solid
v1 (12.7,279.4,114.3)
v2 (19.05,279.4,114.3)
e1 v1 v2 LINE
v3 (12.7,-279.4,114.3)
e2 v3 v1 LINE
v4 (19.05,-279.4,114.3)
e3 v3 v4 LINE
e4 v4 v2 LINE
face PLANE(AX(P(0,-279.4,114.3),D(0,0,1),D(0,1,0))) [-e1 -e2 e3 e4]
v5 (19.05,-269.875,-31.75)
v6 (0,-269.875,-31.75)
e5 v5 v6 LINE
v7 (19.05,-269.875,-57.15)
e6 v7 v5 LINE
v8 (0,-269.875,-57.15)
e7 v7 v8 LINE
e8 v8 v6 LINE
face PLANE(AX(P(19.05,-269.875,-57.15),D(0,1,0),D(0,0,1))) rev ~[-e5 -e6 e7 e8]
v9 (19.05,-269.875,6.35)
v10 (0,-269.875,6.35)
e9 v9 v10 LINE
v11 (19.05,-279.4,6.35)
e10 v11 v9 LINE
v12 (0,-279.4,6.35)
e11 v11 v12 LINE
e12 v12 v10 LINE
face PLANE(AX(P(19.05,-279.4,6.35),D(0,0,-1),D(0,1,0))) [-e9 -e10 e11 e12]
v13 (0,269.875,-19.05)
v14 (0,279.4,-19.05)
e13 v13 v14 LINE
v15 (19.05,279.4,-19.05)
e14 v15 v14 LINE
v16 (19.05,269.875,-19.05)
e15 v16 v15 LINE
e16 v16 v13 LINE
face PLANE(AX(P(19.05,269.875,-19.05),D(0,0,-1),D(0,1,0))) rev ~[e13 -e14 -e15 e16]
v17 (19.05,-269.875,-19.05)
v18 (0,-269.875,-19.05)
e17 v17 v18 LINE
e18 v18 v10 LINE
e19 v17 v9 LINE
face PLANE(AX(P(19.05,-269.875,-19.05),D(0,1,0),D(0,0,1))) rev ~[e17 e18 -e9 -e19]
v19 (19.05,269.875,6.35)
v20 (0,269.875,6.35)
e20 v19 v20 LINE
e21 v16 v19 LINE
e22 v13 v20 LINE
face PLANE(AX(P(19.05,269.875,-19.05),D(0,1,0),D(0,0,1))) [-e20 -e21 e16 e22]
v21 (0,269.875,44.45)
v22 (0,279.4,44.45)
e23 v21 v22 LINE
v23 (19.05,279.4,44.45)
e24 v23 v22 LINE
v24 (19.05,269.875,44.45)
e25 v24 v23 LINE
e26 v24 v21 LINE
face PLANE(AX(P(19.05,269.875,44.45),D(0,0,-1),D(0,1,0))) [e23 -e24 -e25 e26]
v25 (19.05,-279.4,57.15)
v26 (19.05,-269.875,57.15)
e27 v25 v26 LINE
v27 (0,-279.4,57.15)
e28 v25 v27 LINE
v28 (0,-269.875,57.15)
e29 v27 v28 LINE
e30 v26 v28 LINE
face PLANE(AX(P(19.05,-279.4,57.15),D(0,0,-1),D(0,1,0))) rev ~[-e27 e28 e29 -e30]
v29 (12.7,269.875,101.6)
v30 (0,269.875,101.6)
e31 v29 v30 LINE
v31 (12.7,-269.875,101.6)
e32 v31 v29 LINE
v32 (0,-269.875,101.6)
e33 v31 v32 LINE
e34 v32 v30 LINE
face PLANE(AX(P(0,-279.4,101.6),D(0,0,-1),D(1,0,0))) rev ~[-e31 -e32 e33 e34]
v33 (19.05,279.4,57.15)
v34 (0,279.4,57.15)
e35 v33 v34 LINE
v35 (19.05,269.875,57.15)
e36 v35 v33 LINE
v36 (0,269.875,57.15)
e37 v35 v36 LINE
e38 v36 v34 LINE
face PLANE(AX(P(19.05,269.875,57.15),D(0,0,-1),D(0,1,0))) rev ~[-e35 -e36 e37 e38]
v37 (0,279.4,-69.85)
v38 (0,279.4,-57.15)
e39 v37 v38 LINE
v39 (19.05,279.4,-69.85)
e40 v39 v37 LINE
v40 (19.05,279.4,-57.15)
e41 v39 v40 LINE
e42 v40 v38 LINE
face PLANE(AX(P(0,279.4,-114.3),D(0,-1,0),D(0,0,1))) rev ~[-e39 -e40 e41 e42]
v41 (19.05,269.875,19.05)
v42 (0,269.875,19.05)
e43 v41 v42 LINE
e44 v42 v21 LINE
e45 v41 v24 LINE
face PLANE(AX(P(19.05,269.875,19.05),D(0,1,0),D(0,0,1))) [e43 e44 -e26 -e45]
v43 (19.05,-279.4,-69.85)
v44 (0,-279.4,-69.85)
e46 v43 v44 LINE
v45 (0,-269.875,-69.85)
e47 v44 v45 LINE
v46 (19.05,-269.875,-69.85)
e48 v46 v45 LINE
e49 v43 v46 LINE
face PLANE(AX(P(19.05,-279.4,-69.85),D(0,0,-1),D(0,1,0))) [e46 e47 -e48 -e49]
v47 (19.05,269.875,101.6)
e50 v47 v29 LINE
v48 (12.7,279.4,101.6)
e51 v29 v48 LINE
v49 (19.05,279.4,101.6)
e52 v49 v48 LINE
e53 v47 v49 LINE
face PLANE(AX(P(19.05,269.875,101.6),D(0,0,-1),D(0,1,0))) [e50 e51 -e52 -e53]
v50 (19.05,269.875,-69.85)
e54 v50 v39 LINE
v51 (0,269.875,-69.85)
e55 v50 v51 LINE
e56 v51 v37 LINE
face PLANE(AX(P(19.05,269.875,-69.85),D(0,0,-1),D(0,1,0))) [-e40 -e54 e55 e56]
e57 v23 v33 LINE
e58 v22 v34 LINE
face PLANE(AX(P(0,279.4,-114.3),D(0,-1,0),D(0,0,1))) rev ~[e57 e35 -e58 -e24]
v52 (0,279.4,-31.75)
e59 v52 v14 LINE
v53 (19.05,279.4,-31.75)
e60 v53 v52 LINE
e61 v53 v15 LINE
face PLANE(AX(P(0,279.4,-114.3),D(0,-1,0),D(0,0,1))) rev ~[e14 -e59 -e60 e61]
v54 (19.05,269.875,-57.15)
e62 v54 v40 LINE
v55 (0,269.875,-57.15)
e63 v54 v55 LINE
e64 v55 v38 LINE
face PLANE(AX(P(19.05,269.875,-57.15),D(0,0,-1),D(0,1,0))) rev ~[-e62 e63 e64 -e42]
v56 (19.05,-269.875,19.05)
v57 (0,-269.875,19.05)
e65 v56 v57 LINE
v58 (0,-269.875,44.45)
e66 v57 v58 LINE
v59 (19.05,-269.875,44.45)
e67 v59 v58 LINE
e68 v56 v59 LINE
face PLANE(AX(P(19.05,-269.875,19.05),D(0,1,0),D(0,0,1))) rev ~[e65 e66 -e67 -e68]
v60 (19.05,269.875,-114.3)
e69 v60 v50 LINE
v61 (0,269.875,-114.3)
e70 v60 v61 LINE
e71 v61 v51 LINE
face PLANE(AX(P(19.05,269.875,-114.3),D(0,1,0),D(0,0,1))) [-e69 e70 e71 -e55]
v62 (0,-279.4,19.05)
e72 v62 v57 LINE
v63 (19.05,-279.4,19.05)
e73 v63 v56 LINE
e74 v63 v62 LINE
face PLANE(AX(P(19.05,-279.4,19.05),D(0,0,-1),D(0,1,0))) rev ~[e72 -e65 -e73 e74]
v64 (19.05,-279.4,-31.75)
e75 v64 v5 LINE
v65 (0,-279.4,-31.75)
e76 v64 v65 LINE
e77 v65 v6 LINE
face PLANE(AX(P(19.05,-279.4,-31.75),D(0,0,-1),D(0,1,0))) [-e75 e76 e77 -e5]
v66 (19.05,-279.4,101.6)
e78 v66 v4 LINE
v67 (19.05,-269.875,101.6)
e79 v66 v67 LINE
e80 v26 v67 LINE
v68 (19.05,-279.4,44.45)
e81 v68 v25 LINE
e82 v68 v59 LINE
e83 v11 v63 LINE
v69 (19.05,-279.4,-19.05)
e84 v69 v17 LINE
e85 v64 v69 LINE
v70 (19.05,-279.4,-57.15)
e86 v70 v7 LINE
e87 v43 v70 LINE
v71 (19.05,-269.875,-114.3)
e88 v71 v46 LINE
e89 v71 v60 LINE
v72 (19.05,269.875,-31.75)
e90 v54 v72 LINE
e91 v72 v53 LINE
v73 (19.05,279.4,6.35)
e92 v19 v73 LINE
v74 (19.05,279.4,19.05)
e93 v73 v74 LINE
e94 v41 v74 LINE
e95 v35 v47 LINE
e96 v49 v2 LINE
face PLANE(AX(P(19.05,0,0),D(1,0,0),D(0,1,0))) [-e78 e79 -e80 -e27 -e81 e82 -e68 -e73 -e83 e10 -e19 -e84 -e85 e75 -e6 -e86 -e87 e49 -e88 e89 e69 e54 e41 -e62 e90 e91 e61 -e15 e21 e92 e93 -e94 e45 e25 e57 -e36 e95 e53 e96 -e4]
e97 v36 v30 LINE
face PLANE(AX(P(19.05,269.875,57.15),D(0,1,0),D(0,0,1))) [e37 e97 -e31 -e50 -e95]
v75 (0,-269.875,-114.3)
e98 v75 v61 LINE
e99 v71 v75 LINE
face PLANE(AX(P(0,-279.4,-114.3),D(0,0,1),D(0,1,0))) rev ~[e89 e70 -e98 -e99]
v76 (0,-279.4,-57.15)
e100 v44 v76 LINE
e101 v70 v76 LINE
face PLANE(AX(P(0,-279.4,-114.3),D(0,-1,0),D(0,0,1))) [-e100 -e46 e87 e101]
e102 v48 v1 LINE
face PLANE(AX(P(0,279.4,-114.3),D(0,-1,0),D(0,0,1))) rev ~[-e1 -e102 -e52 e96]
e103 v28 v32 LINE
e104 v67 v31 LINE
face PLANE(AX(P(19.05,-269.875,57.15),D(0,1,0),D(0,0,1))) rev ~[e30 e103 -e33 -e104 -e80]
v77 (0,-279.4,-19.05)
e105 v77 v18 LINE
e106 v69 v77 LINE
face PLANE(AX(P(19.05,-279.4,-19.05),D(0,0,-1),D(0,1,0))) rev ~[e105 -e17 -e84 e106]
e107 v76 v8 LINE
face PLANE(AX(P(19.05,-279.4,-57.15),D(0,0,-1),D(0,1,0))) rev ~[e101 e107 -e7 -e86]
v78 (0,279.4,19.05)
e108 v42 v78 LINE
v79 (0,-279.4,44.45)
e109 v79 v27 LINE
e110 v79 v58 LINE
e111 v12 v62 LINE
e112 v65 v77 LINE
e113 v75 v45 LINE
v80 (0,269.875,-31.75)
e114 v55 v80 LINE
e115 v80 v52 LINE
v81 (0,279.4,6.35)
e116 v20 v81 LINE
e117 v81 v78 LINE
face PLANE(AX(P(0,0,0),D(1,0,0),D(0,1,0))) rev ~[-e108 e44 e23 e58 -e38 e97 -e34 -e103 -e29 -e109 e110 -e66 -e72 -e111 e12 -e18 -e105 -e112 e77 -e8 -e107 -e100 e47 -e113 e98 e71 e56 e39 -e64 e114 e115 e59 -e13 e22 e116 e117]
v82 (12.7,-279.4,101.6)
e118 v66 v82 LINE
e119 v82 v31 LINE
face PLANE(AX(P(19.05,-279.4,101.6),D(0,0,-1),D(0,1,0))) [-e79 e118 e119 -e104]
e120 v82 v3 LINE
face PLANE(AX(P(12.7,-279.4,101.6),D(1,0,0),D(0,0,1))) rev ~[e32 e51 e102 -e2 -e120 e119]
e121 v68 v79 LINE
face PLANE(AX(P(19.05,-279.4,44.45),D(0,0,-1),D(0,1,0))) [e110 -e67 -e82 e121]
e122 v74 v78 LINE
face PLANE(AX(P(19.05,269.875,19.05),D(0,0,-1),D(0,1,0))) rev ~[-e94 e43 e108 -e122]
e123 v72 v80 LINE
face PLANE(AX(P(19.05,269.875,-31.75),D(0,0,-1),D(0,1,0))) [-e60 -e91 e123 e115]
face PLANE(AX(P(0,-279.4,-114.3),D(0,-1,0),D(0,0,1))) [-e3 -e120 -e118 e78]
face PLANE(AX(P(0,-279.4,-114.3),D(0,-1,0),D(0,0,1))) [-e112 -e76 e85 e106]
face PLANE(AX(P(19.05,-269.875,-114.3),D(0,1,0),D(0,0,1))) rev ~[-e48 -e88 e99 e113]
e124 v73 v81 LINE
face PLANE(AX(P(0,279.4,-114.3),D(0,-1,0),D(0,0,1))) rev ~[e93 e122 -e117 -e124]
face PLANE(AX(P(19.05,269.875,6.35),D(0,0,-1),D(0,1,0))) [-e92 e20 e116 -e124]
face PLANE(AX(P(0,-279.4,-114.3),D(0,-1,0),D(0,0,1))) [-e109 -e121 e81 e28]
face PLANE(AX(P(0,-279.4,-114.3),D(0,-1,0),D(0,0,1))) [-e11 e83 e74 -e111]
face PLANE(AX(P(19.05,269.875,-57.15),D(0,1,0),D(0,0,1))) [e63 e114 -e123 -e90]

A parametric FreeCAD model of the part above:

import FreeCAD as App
import Part
import Sketcher
Q = App.Units.Quantity


def add_polygon(sketch, points):
    """Adds a closed chain of lines whose ends are joined by coincident constraints."""
    first, n = sketch.GeometryCount, len(points)
    for a, b in zip(points, points[1:] + points[:1]):
        sketch.addGeometry(Part.LineSegment(App.Vector(*a, 0), App.Vector(*b, 0)), False)
    for i in range(n):
        sketch.addConstraint(Sketcher.Constraint("Coincident", first + i, 2, first + (i + 1) % n, 1))

doc = App.newDocument("Part")
params = doc.addObject("Spreadsheet::Sheet", "Params")
for row, (alias, value) in enumerate([
    ("sketch1_width", "22 in"),
    ("sketch1_height", "9 in"),
    ("pad1_length", "0.75 in"),
    ("sketch2_width", "0.5 in"),
    ("sketch3_height", "1 in"),
    ("sketch3_height2", "1.75 in"),
    ("sketch3_width", "0.375 in"),
], start=1):
    params.set(f"A{row}", alias)
    params.set(f"B{row}", "=" + value)
    params.setAlias(f"B{row}", alias)

body = doc.addObject("PartDesign::Body", "Body")

# Sketch on YZ plane
sketch1 = body.newObject("Sketcher::SketchObject", "Sketch")
sketch1.AttachmentSupport = (doc.getObject("YZ_Plane"), [""])
sketch1.MapMode = "FlatFace"
add_polygon(sketch1, [(-279, 114), (-279, -114), (279, -114), (279, 114)])  # lines 0-3
sketch1.addConstraint(Sketcher.Constraint("Vertical", 0))
sketch1.addConstraint(Sketcher.Constraint("Horizontal", 1))
sketch1.addConstraint(Sketcher.Constraint("Vertical", 2))
sketch1.addConstraint(Sketcher.Constraint("Horizontal", 3))
sketch1.addConstraint(Sketcher.Constraint("Symmetric", 0, 2, 2, 2, -1, 1))
sketch1.addConstraint(Sketcher.Constraint("DistanceX", 1, 1, 1, 2, Q("22 in")))
sketch1.addConstraint(Sketcher.Constraint("DistanceY", 0, 2, 0, 1, Q("9 in")))
sketch1.setExpression("Constraints[9]", "Params.sketch1_width")
sketch1.setExpression("Constraints[10]", "Params.sketch1_height")
pad1 = body.newObject("PartDesign::Pad", "Pad")
pad1.Profile = sketch1
pad1.setExpression("Length", "Params.pad1_length")

# Sketch on XZ plane
sketch2 = body.newObject("Sketcher::SketchObject", "Sketch001")
sketch2.AttachmentSupport = (doc.getObject("XZ_Plane"), [""])
sketch2.MapMode = "FlatFace"
sketch2.AttachmentOffset = App.Placement(App.Vector(0, 0, 11 * 25.4), App.Rotation())
add_polygon(sketch2, [(0, 114), (0, 102), (13, 102), (13, 114)])  # lines 0-3
sketch2.addConstraint(Sketcher.Constraint("Vertical", 0))
sketch2.addConstraint(Sketcher.Constraint("Horizontal", 1))
sketch2.addConstraint(Sketcher.Constraint("Vertical", 2))
sketch2.addConstraint(Sketcher.Constraint("Horizontal", 3))
sketch2.addConstraint(Sketcher.Constraint("PointOnObject", 0, 2, -2))
sketch2.addConstraint(Sketcher.Constraint("Equal", 3, 0))
sketch2.addConstraint(Sketcher.Constraint("DistanceX", 1, 1, 1, 2, Q("0.5 in")))
sketch2.addConstraint(Sketcher.Constraint("DistanceY", -1, 1, 0, 2, Q("4 in")))
sketch2.setExpression("Constraints[10]", "Params.sketch2_width")
pocket1 = body.newObject("PartDesign::Pocket", "Pocket")
pocket1.Profile = sketch2
pocket1.Type = "ThroughAll"

# Sketch on YZ plane
sketch3 = body.newObject("Sketcher::SketchObject", "Sketch002")
sketch3.AttachmentSupport = (doc.getObject("YZ_Plane"), [""])
sketch3.MapMode = "FlatFace"
sketch3.AttachmentOffset = App.Placement(App.Vector(0, 0, 0.75 * 25.4), App.Rotation())
add_polygon(sketch3, [(-279, 102), (-279, 57), (-270, 57), (-270, 102)])  # lines 0-3
add_polygon(sketch3, [(-279, 44), (-279, 19), (-270, 19), (-270, 44)])  # lines 4-7
add_polygon(sketch3, [(-279, 6), (-279, -19), (-270, -19), (-270, 6)])  # lines 8-11
add_polygon(sketch3, [(-279, -32), (-279, -57), (-270, -57), (-270, -32)])  # lines 12-15
add_polygon(sketch3, [(-279, -70), (-279, -114), (-270, -114), (-270, -70)])  # lines 16-19
add_polygon(sketch3, [(270, 102), (270, 57), (279, 57), (279, 102)])  # lines 20-23
add_polygon(sketch3, [(270, 44), (270, 19), (279, 19), (279, 44)])  # lines 24-27
add_polygon(sketch3, [(270, 6), (270, -19), (279, -19), (279, 6)])  # lines 28-31
add_polygon(sketch3, [(270, -32), (270, -57), (279, -57), (279, -32)])  # lines 32-35
add_polygon(sketch3, [(270, -70), (270, -114), (279, -114), (279, -70)])  # lines 36-39
sketch3.addConstraint(Sketcher.Constraint("Vertical", 0))
sketch3.addConstraint(Sketcher.Constraint("Horizontal", 1))
sketch3.addConstraint(Sketcher.Constraint("Vertical", 2))
sketch3.addConstraint(Sketcher.Constraint("Horizontal", 3))
sketch3.addConstraint(Sketcher.Constraint("Vertical", 4))
sketch3.addConstraint(Sketcher.Constraint("Horizontal", 5))
sketch3.addConstraint(Sketcher.Constraint("Vertical", 6))
sketch3.addConstraint(Sketcher.Constraint("Horizontal", 7))
sketch3.addConstraint(Sketcher.Constraint("Vertical", 8))
sketch3.addConstraint(Sketcher.Constraint("Horizontal", 9))
sketch3.addConstraint(Sketcher.Constraint("Vertical", 10))
sketch3.addConstraint(Sketcher.Constraint("Horizontal", 11))
sketch3.addConstraint(Sketcher.Constraint("Vertical", 12))
sketch3.addConstraint(Sketcher.Constraint("Horizontal", 13))
sketch3.addConstraint(Sketcher.Constraint("Vertical", 14))
sketch3.addConstraint(Sketcher.Constraint("Horizontal", 15))
sketch3.addConstraint(Sketcher.Constraint("Vertical", 16))
sketch3.addConstraint(Sketcher.Constraint("Horizontal", 17))
sketch3.addConstraint(Sketcher.Constraint("Vertical", 18))
sketch3.addConstraint(Sketcher.Constraint("Horizontal", 19))
sketch3.addConstraint(Sketcher.Constraint("Vertical", 20))
sketch3.addConstraint(Sketcher.Constraint("Horizontal", 21))
sketch3.addConstraint(Sketcher.Constraint("Vertical", 22))
sketch3.addConstraint(Sketcher.Constraint("Horizontal", 23))
sketch3.addConstraint(Sketcher.Constraint("Vertical", 24))
sketch3.addConstraint(Sketcher.Constraint("Horizontal", 25))
sketch3.addConstraint(Sketcher.Constraint("Vertical", 26))
sketch3.addConstraint(Sketcher.Constraint("Horizontal", 27))
sketch3.addConstraint(Sketcher.Constraint("Vertical", 28))
sketch3.addConstraint(Sketcher.Constraint("Horizontal", 29))
sketch3.addConstraint(Sketcher.Constraint("Vertical", 30))
sketch3.addConstraint(Sketcher.Constraint("Horizontal", 31))
sketch3.addConstraint(Sketcher.Constraint("Vertical", 32))
sketch3.addConstraint(Sketcher.Constraint("Horizontal", 33))
sketch3.addConstraint(Sketcher.Constraint("Vertical", 34))
sketch3.addConstraint(Sketcher.Constraint("Horizontal", 35))
sketch3.addConstraint(Sketcher.Constraint("Vertical", 36))
sketch3.addConstraint(Sketcher.Constraint("Horizontal", 37))
sketch3.addConstraint(Sketcher.Constraint("Vertical", 38))
sketch3.addConstraint(Sketcher.Constraint("Horizontal", 39))
sketch3.addConstraint(Sketcher.Constraint("Symmetric", 13, 2, 20, 2, -1, 1))
sketch3.addConstraint(Sketcher.Constraint("Symmetric", 9, 2, 24, 2, -1, 1))
sketch3.addConstraint(Sketcher.Constraint("Symmetric", 5, 2, 28, 2, -1, 1))
sketch3.addConstraint(Sketcher.Constraint("Symmetric", 1, 2, 32, 2, -1, 1))
sketch3.addConstraint(Sketcher.Constraint("Symmetric", 1, 2, 20, 2, -2))
sketch3.addConstraint(Sketcher.Constraint("Symmetric", 3, 2, 22, 2, -2))
sketch3.addConstraint(Sketcher.Constraint("Symmetric", 5, 2, 24, 2, -2))
sketch3.addConstraint(Sketcher.Constraint("Symmetric", 7, 2, 26, 2, -2))
sketch3.addConstraint(Sketcher.Constraint("Symmetric", 11, 2, 30, 2, -2))
sketch3.addConstraint(Sketcher.Constraint("Symmetric", 15, 2, 34, 2, -2))
sketch3.addConstraint(Sketcher.Constraint("Symmetric", 17, 2, 36, 2, -2))
sketch3.addConstraint(Sketcher.Constraint("Symmetric", 19, 2, 38, 2, -2))
sketch3.addConstraint(Sketcher.Constraint("Vertical", 3, 2, 4, 2))
sketch3.addConstraint(Sketcher.Constraint("Vertical", 2, 2, 5, 2))
sketch3.addConstraint(Sketcher.Constraint("Vertical", 7, 2, 8, 2))
sketch3.addConstraint(Sketcher.Constraint("Vertical", 11, 2, 12, 2))
sketch3.addConstraint(Sketcher.Constraint("Vertical", 15, 2, 16, 2))
sketch3.addConstraint(Sketcher.Constraint("Vertical", 14, 2, 17, 2))
sketch3.addConstraint(Sketcher.Constraint("Equal", 6, 8))
sketch3.addConstraint(Sketcher.Constraint("Equal", 10, 12))
sketch3.addConstraint(Sketcher.Constraint("Equal", 2, 16))
sketch3.addConstraint(Sketcher.Constraint("DistanceY", 4, 2, 4, 1, Q("1 in")))
sketch3.addConstraint(Sketcher.Constraint("DistanceX", 0, 2, -1, 1, Q("11 in")))
sketch3.addConstraint(Sketcher.Constraint("DistanceY", -1, 1, 2, 2, Q("4 in")))
sketch3.addConstraint(Sketcher.Constraint("DistanceY", 8, 2, 0, 2, Q("3 in")))
sketch3.addConstraint(Sketcher.Constraint("DistanceY", 0, 2, 0, 1, Q("1.75 in")))
sketch3.addConstraint(Sketcher.Constraint("DistanceY", 16, 2, -1, 1, Q("4.5 in")))
sketch3.addConstraint(Sketcher.Constraint("DistanceX", 1, 1, 1, 2, Q("0.375 in")))
sketch3.setExpression("Constraints[101]", "Params.sketch3_height")
sketch3.setExpression("Constraints[105]", "Params.sketch3_height2")
sketch3.setExpression("Constraints[107]", "Params.sketch3_width")
pocket2 = body.newObject("PartDesign::Pocket", "Pocket001")
pocket2.Profile = sketch3
pocket2.Type = "ThroughAll"

doc.recompute()
